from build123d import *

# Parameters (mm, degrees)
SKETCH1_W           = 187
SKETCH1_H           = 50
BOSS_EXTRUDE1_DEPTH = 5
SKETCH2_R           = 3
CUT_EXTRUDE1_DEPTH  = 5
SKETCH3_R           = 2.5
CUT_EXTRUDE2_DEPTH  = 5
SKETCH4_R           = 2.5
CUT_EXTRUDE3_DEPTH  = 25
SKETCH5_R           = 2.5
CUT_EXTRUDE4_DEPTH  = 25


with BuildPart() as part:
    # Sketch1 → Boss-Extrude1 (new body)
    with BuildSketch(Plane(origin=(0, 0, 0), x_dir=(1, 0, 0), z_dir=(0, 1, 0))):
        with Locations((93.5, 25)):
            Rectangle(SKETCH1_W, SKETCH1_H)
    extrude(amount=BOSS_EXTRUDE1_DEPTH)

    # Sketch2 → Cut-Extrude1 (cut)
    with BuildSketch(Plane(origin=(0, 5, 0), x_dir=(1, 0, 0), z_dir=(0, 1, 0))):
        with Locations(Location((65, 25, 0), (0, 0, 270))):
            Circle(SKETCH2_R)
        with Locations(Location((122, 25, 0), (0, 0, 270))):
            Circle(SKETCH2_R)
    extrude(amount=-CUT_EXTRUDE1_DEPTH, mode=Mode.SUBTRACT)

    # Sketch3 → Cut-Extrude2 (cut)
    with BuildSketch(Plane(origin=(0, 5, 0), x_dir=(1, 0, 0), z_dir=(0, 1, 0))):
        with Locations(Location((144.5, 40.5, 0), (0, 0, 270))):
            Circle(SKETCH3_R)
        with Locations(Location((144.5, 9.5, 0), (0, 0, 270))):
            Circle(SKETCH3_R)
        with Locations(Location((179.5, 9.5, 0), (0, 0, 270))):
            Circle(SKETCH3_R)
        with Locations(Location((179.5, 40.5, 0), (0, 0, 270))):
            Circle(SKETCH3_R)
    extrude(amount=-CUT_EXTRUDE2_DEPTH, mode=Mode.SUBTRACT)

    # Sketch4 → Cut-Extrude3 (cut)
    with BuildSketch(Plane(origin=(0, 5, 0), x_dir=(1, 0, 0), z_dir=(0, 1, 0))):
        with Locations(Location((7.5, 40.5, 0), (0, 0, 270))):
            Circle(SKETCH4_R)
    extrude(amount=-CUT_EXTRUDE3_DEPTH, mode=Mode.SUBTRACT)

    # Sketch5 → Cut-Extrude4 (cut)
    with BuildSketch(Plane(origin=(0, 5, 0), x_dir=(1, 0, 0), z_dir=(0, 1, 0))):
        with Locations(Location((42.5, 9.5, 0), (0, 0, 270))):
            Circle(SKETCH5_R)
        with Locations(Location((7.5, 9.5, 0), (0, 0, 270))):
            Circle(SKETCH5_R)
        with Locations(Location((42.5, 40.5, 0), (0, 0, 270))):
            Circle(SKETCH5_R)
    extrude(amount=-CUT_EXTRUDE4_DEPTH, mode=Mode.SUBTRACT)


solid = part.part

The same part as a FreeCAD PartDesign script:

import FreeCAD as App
import Part
import Sketcher

V = App.Vector
Q = App.Units.Quantity


def add_polygon(sketch, points):
    """Adds a closed chain of lines whose ends are joined by coincident constraints."""
    first, n = sketch.GeometryCount, len(points)
    for a, b in zip(points, points[1:] + points[:1]):
        sketch.addGeometry(Part.LineSegment(App.Vector(*a, 0), App.Vector(*b, 0)), False)
    for i in range(n):
        sketch.addConstraint(Sketcher.Constraint("Coincident", first + i, 2, first + (i + 1) % n, 1))

doc = App.newDocument("Part")
body = doc.addObject("PartDesign::Body", "Body")

sketch1 = doc.addObject("Sketcher::SketchObject", "Sketch")
body.addObject(sketch1)
sketch1.AttachmentSupport = (doc.XZ_Plane, [""])
sketch1.MapMode = "FlatFace"
add_polygon(sketch1, [(0, -50), (0, 0), (187, 0), (187, -50)])
sketch1.addConstraint([
    Sketcher.Constraint("Vertical", 0),
    Sketcher.Constraint("Horizontal", 1),
    Sketcher.Constraint("Vertical", 2),
    Sketcher.Constraint("Horizontal", 3),
    Sketcher.Constraint("Coincident", 0, 2, -1, 1),
    Sketcher.Constraint("DistanceX", 1, 1, 1, 2, Q("187 mm")),
    Sketcher.Constraint("DistanceY", 0, 1, 0, 2, Q("50 mm")),
])
pad1 = doc.addObject("PartDesign::Pad", "Pad")
body.addObject(pad1)
pad1.Profile = sketch1
pad1.Length = 5
pad1.Reversed = True

sketch2 = doc.addObject("Sketcher::SketchObject", "Sketch001")
body.addObject(sketch2)
sketch2.AttachmentSupport = (doc.XZ_Plane, [""])
sketch2.MapMode = "FlatFace"
sketch2.AttachmentOffset = App.Placement(V(0, 0, -5), App.Rotation())
sketch2.addGeometry([
    Part.Circle(V(65, -25, 0), V(0, 0, 1), 3),
    Part.Circle(V(122, -25, 0), V(0, 0, 1), 3),
], False)
sketch2.addConstraint([
    Sketcher.Constraint("Equal", 0, 1),
    Sketcher.Constraint("Horizontal", 0, 3, 1, 3),
    Sketcher.Constraint("Diameter", 0, Q("6 mm")),
    Sketcher.Constraint("DistanceX", -1, 1, 0, 3, Q("65 mm")),
    Sketcher.Constraint("DistanceY", 0, 3, -1, 1, Q("25 mm")),
    Sketcher.Constraint("DistanceX", -1, 1, 1, 3, Q("122 mm")),
])
pocket1 = doc.addObject("PartDesign::Pocket", "Pocket")
body.addObject(pocket1)
pocket1.Profile = sketch2
pocket1.Length = 5
pocket1.Reversed = True

sketch3 = doc.addObject("Sketcher::SketchObject", "Sketch002")
body.addObject(sketch3)
sketch3.AttachmentSupport = (doc.XZ_Plane, [""])
sketch3.MapMode = "FlatFace"
sketch3.AttachmentOffset = App.Placement(V(0, 0, -5), App.Rotation())
sketch3.addGeometry([
    Part.Circle(V(144.5, -40.5, 0), V(0, 0, 1), 2.5),
    Part.Circle(V(144.5, -9.5, 0), V(0, 0, 1), 2.5),
    Part.Circle(V(179.5, -9.5, 0), V(0, 0, 1), 2.5),
    Part.Circle(V(179.5, -40.5, 0), V(0, 0, 1), 2.5),
], False)
sketch3.addConstraint([
    Sketcher.Constraint("Equal", 0, 1),
    Sketcher.Constraint("Equal", 1, 2),
    Sketcher.Constraint("Equal", 2, 3),
    Sketcher.Constraint("Horizontal", 1, 3, 2, 3),
    Sketcher.Constraint("Horizontal", 0, 3, 3, 3),
    Sketcher.Constraint("Vertical", 0, 3, 1, 3),
    Sketcher.Constraint("Vertical", 2, 3, 3, 3),
    Sketcher.Constraint("Diameter", 0, Q("5 mm")),
    Sketcher.Constraint("DistanceY", 0, 3, 1, 3, Q("31 mm")),
    Sketcher.Constraint("DistanceX", 1, 3, 2, 3, Q("35 mm")),
    Sketcher.Constraint("DistanceX", -1, 1, 0, 3, Q("144.5 mm")),
    Sketcher.Constraint("DistanceY", 0, 3, -1, 1, Q("40.5 mm")),
])
pocket2 = doc.addObject("PartDesign::Pocket", "Pocket001")
body.addObject(pocket2)
pocket2.Profile = sketch3
pocket2.Length = 5
pocket2.Reversed = True

sketch4 = doc.addObject("Sketcher::SketchObject", "Sketch003")
body.addObject(sketch4)
sketch4.AttachmentSupport = (doc.XZ_Plane, [""])
sketch4.MapMode = "FlatFace"
sketch4.AttachmentOffset = App.Placement(V(0, 0, -5), App.Rotation())
sketch4.addGeometry(Part.Circle(V(7.5, -40.5, 0), V(0, 0, 1), 2.5), False)
sketch4.addConstraint([
    Sketcher.Constraint("Diameter", 0, Q("5 mm")),
    Sketcher.Constraint("DistanceX", -1, 1, 0, 3, Q("7.5 mm")),
    Sketcher.Constraint("DistanceY", 0, 3, -1, 1, Q("40.5 mm")),
])
pocket3 = doc.addObject("PartDesign::Pocket", "Pocket002")
body.addObject(pocket3)
pocket3.Profile = sketch4
pocket3.Length = 25
pocket3.Reversed = True

sketch5 = doc.addObject("Sketcher::SketchObject", "Sketch004")
body.addObject(sketch5)
sketch5.AttachmentSupport = (doc.XZ_Plane, [""])
sketch5.MapMode = "FlatFace"
sketch5.AttachmentOffset = App.Placement(V(0, 0, -5), App.Rotation())
sketch5.addGeometry([
    Part.Circle(V(42.5, -9.5, 0), V(0, 0, 1), 2.5),
    Part.Circle(V(7.5, -9.5, 0), V(0, 0, 1), 2.5),
    Part.Circle(V(42.5, -40.5, 0), V(0, 0, 1), 2.5),
], False)
sketch5.addConstraint([
    Sketcher.Constraint("Equal", 0, 1),
    Sketcher.Constraint("Equal", 1, 2),
    Sketcher.Constraint("Horizontal", 0, 3, 1, 3),
    Sketcher.Constraint("Vertical", 0, 3, 2, 3),
    Sketcher.Constraint("Diameter", 0, Q("5 mm")),
    Sketcher.Constraint("DistanceX", 1, 3, 0, 3, Q("35 mm")),
    Sketcher.Constraint("DistanceY", 2, 3, 0, 3, Q("31 mm")),
    Sketcher.Constraint("DistanceX", -1, 1, 0, 3, Q("42.5 mm")),
    Sketcher.Constraint("DistanceY", 0, 3, -1, 1, Q("9.5 mm")),
])
pocket4 = doc.addObject("PartDesign::Pocket", "Pocket003")
body.addObject(pocket4)
pocket4.Profile = sketch5
pocket4.Length = 25
pocket4.Reversed = True

doc.recompute()
